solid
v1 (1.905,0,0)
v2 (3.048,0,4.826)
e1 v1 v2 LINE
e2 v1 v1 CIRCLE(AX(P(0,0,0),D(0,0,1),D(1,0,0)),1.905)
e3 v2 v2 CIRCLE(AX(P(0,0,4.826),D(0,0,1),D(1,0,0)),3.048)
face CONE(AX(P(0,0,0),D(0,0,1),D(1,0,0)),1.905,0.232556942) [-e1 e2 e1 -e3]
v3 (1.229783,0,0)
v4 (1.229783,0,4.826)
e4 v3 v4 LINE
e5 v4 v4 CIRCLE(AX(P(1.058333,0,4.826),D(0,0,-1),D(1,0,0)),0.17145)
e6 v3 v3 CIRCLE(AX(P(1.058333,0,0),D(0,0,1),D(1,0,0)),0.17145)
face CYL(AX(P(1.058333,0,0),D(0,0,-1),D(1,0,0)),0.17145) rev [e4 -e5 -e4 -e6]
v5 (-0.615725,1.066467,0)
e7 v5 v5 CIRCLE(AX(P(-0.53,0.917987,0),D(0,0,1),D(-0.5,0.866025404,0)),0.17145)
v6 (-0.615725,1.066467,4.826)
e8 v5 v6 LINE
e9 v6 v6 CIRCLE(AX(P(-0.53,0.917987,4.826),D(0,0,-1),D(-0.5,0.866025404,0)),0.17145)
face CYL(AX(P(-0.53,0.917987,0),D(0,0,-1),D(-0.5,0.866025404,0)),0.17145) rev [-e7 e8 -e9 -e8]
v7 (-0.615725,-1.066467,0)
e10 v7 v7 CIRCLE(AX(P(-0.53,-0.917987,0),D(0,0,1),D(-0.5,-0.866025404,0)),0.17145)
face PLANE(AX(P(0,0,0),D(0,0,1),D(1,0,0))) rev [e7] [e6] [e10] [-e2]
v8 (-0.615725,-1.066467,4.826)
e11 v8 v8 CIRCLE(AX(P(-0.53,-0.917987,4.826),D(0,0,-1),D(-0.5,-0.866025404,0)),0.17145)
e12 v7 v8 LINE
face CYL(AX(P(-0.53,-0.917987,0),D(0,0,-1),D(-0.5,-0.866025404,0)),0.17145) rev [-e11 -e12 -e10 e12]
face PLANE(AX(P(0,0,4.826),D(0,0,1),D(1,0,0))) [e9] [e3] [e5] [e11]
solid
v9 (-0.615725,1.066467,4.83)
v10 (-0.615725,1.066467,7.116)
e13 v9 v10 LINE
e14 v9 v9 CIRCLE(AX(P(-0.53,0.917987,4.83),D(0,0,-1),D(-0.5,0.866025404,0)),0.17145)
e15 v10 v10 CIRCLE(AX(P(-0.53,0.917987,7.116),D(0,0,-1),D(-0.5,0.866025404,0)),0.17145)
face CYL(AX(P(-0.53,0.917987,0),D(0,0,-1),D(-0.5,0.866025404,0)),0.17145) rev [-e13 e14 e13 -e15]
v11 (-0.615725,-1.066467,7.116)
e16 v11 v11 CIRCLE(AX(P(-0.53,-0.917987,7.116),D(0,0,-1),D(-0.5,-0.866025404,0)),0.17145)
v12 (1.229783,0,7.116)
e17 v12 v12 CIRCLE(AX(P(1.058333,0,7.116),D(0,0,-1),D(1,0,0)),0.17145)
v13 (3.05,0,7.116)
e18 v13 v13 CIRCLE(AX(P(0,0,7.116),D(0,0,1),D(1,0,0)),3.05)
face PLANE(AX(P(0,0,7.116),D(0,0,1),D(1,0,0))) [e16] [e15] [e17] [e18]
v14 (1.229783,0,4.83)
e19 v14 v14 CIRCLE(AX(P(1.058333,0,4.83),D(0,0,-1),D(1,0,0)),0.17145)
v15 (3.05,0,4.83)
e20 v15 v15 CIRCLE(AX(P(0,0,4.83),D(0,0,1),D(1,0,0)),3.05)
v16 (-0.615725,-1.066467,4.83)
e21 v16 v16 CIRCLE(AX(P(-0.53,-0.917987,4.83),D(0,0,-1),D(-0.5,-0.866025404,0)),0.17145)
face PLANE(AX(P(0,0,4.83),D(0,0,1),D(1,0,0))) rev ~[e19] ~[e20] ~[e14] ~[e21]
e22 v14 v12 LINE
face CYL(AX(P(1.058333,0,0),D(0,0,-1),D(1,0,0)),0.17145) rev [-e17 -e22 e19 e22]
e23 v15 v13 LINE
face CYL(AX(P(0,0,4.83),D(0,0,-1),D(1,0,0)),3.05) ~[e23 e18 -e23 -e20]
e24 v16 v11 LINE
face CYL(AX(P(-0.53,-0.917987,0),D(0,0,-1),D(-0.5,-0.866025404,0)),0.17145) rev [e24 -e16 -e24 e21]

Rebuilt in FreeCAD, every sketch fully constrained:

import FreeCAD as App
import Part
import Sketcher
Q = App.Units.Quantity

doc = App.newDocument("Part")
body = doc.addObject("PartDesign::Body", "Body")

sketch1 = body.newObject("Sketcher::SketchObject", "Sketch")
sketch1.AttachmentSupport = (doc.getObject("XY_Plane"), [""])
sketch1.MapMode = "FlatFace"
sketch1.addGeometry(Part.Circle(App.Vector(1.06, 0, 0), App.Vector(0, 0, 1), 0.17), False)
sketch1.addConstraint([
    Sketcher.Constraint("PointOnObject", 0, 3, -1),
    Sketcher.Constraint("Diameter", 0, Q("0.0135 in")),
    Sketcher.Constraint("DistanceX", -1, 1, 0, 3, Q("1.06 mm")),
])
pad1 = body.newObject("PartDesign::Pad", "Pad")
pad1.Profile = sketch1
pad1.Length = 7.12
body2 = doc.addObject("PartDesign::Body", "Body001")
doc.recompute()

body.Placement = App.Placement(App.Vector(0, 0, 0), App.Rotation(App.Vector(0, 0, 1), 120))
boolean = body2.newObject("PartDesign::Boolean", "Boolean")
boolean.Type = "Fuse"
boolean.addObjects([body])
body3 = doc.addObject("PartDesign::Body", "Body002")

sketch2 = body3.newObject("Sketcher::SketchObject", "Sketch001")
sketch2.AttachmentSupport = (doc.getObject("XY_Plane002"), [""])
sketch2.MapMode = "FlatFace"
sketch2.addGeometry(Part.Circle(App.Vector(1.06, 0, 0), App.Vector(0, 0, 1), 0.17), False)
sketch2.addConstraint([
    Sketcher.Constraint("PointOnObject", 0, 3, -1),
    Sketcher.Constraint("Diameter", 0, Q("0.0135 in")),
    Sketcher.Constraint("DistanceX", -1, 1, 0, 3, Q("1.06 mm")),
])
pad2 = body3.newObject("PartDesign::Pad", "Pad001")
pad2.Profile = sketch2
pad2.Length = 7.12
body4 = doc.addObject("PartDesign::Body", "Body003")
doc.recompute()

body3.Placement = App.Placement(App.Vector(0, 0, 0), App.Rotation(App.Vector(0, 0, 1), 240))
boolean2 = body4.newObject("PartDesign::Boolean", "Boolean001")
boolean2.Type = "Fuse"
boolean2.addObjects([body3])
body5 = doc.addObject("PartDesign::Body", "Body004")
body5.AllowCompound = True

sketch3 = body5.newObject("Sketcher::SketchObject", "Sketch002")
sketch3.AttachmentSupport = (doc.getObject("XY_Plane004"), [""])
sketch3.MapMode = "FlatFace"
sketch3.addGeometry(Part.Circle(App.Vector(1.06, 0, 0), App.Vector(0, 0, 1), 0.17), False)
sketch3.addConstraint([
    Sketcher.Constraint("PointOnObject", 0, 3, -1),
    Sketcher.Constraint("Diameter", 0, Q("0.0135 in")),
    Sketcher.Constraint("DistanceX", -1, 1, 0, 3, Q("1.058333 mm")),
])
pad3 = body5.newObject("PartDesign::Pad", "Pad002")
pad3.Profile = sketch3
pad3.Length = 7.12
doc.recompute()

boolean3 = body5.newObject("PartDesign::Boolean", "Boolean002")
boolean3.Type = "Fuse"
boolean3.addObjects([body2])
doc.recompute()

boolean4 = body5.newObject("PartDesign::Boolean", "Boolean003")
boolean4.Type = "Fuse"
boolean4.addObjects([body4])
body6 = doc.addObject("PartDesign::Body", "Body005")

sketch4 = body6.newObject("Sketcher::SketchObject", "Sketch003")
sketch4.AttachmentSupport = (doc.getObject("XY_Plane005"), [""])
sketch4.MapMode = "FlatFace"
sketch4.AttachmentOffset = App.Placement(App.Vector(0, 0, 4.83), App.Rotation())
sketch4.addGeometry(Part.Circle(App.Vector(0, 0, 0), App.Vector(0, 0, 1), 3), False)
sketch4.addConstraint([
    Sketcher.Constraint("Coincident", 0, 3, -1, 1),
    Sketcher.Constraint("Diameter", 0, Q("6.1 mm")),
])
pad4 = body6.newObject("PartDesign::Pad", "Pad003")
pad4.Profile = sketch4
pad4.Length = Q("0.09 in")
body7 = doc.addObject("PartDesign::Body", "Body006")
body7.AllowCompound = True

sketch5 = body7.newObject("Sketcher::SketchObject", "Sketch004")
sketch5.AttachmentSupport = (doc.getObject("XZ_Plane006"), [""])
sketch5.MapMode = "FlatFace"
sketch5.addGeometry([
    Part.LineSegment(App.Vector(0, 0, 0), App.Vector(1.9, 0, 0)),
    Part.LineSegment(App.Vector(1.9, 0, 0), App.Vector(3, 4.8, 0)),
    Part.LineSegment(App.Vector(3, 4.8, 0), App.Vector(0, 4.8, 0)),
    Part.LineSegment(App.Vector(0, 4.8, 0), App.Vector(0, 0, 0)),
], False)
sketch5.addConstraint([
    Sketcher.Constraint("Coincident", 0, 2, 1, 1),
    Sketcher.Constraint("Coincident", 1, 2, 2, 1),
    Sketcher.Constraint("Coincident", 2, 2, 3, 1),
    Sketcher.Constraint("Coincident", 3, 2, 0, 1),
    Sketcher.Constraint("Horizontal", 0),
    Sketcher.Constraint("Horizontal", 2),
    Sketcher.Constraint("Vertical", 3),
    Sketcher.Constraint("Coincident", 3, 2, -1, 1),
    Sketcher.Constraint("DistanceX", 2, 2, 2, 1, Q("0.12 in")),
    Sketcher.Constraint("DistanceY", 3, 2, 3, 1, Q("0.19 in")),
    Sketcher.Constraint("DistanceX", 0, 1, 0, 2, Q("0.075 in")),
])
revolution = body7.newObject("PartDesign::Revolution", "Revolution")
revolution.Profile = sketch5
revolution.ReferenceAxis = (sketch5, ["V_Axis"])
revolution.Angle = 360
doc.recompute()

boolean5 = body7.newObject("PartDesign::Boolean", "Boolean004")
boolean5.Type = "Fuse"
boolean5.addObjects([body6])
doc.recompute()

boolean6 = body7.newObject("PartDesign::Boolean", "Boolean005")
boolean6.Type = "Cut"
boolean6.addObjects([body5])

doc.recompute()
